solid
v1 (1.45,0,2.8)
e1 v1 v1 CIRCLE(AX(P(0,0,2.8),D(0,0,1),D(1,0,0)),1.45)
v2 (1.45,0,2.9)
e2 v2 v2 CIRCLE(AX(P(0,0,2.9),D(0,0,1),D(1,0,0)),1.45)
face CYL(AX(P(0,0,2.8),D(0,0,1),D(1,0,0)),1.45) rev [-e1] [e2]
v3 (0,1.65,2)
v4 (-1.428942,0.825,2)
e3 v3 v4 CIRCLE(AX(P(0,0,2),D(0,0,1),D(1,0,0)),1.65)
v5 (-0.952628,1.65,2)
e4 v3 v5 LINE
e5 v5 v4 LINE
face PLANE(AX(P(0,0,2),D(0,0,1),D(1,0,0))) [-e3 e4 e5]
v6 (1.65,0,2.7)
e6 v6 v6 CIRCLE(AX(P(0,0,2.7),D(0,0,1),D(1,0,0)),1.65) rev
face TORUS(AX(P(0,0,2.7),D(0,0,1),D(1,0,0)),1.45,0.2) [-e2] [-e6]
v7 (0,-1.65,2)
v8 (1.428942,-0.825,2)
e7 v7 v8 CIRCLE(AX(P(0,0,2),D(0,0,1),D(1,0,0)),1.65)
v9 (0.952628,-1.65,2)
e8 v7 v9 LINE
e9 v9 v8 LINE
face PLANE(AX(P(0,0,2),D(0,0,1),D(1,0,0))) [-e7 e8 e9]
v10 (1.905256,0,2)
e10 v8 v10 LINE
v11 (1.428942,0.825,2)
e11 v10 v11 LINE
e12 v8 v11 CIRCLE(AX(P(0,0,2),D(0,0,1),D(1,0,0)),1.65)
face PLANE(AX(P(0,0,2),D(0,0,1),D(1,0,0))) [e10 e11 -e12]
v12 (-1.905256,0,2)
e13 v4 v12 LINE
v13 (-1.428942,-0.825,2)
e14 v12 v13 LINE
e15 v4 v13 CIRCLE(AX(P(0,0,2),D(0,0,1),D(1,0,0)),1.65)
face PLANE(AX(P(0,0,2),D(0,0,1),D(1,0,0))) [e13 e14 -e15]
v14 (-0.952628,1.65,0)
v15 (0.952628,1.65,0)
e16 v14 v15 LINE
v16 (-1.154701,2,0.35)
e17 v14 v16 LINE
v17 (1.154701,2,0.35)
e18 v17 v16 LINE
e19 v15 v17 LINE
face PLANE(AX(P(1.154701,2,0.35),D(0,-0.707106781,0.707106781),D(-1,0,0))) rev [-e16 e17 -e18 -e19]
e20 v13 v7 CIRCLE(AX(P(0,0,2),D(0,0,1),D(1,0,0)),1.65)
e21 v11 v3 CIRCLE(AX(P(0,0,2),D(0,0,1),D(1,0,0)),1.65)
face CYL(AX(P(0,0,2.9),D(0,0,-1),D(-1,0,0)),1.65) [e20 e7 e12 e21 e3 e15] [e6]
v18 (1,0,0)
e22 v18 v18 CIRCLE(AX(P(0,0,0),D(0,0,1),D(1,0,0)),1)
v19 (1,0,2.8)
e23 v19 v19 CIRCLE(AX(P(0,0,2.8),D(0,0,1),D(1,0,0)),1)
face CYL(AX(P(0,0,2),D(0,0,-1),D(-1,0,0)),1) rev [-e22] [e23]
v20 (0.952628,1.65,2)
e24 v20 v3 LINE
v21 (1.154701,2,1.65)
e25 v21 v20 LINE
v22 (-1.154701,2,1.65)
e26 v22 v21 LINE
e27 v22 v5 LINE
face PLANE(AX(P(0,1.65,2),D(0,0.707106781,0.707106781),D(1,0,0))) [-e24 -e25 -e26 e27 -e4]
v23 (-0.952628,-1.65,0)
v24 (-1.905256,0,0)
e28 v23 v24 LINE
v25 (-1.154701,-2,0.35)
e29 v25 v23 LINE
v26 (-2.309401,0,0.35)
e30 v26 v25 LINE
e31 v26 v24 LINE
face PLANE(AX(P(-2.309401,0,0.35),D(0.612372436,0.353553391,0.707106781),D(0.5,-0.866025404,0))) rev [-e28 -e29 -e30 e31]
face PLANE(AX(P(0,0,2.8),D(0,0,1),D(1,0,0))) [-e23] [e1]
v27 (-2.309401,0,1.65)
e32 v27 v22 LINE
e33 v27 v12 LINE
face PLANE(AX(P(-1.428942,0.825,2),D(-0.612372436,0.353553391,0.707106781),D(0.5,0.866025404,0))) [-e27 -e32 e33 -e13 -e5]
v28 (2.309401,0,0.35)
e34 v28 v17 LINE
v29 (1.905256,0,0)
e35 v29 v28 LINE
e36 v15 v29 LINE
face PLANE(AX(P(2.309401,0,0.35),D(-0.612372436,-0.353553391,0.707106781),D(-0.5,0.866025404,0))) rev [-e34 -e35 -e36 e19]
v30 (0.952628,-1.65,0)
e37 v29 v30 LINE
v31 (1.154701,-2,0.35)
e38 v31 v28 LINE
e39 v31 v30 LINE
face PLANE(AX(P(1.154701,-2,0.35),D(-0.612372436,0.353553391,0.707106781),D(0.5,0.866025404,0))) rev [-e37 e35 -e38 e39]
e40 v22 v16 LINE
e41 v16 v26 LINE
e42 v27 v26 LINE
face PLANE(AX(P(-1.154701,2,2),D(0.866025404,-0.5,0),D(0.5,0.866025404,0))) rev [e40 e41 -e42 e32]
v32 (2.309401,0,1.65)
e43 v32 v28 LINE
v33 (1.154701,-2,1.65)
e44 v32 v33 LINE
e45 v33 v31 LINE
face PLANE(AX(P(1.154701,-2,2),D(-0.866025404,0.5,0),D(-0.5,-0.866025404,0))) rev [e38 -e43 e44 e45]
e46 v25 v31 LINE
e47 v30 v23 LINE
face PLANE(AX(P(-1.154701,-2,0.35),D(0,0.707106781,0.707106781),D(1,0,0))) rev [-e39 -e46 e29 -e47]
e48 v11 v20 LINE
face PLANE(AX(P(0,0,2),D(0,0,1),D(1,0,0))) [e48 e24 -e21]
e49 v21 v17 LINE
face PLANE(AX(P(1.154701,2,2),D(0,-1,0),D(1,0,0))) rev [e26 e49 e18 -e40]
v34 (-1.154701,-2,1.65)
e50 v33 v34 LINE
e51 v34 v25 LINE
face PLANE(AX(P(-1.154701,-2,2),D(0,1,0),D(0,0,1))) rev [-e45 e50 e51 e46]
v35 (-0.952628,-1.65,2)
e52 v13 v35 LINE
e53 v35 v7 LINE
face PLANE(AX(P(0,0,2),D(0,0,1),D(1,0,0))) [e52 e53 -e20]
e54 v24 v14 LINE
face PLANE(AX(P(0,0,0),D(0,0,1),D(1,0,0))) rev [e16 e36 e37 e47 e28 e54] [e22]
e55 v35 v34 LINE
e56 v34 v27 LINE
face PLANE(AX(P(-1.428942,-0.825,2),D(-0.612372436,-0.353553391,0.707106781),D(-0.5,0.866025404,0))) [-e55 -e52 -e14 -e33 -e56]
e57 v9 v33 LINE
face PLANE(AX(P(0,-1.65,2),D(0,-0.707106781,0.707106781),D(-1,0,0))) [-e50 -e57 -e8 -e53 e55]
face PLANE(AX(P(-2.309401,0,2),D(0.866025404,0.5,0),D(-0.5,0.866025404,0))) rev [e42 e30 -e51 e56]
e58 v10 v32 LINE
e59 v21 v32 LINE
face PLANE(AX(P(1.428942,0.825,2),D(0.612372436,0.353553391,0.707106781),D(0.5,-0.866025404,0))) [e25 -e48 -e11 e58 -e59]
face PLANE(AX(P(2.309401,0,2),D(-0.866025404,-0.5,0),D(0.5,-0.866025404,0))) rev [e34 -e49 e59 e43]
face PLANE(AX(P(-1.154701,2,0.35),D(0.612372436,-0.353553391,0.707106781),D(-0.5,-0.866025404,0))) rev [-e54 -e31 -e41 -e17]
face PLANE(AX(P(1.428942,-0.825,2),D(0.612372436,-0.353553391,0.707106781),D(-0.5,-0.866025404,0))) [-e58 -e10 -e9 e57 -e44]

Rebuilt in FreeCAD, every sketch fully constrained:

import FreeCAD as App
import Part
import Sketcher
Q = App.Units.Quantity


def edges_at(feature, points):
    """Names of the edges that pass closest to the given points."""
    edges = feature.Shape.Edges
    near = lambda p: min(range(len(edges)), key=lambda i: edges[i].distToShape(Part.Vertex(*p))[0])
    return sorted({f"Edge{near(p) + 1}" for p in points})


def add_polygon(sketch, points):
    """Adds a closed chain of lines whose ends are joined by coincident constraints."""
    first, n = sketch.GeometryCount, len(points)
    for a, b in zip(points, points[1:] + points[:1]):
        sketch.addGeometry(Part.LineSegment(App.Vector(*a, 0), App.Vector(*b, 0)), False)
    for i in range(n):
        sketch.addConstraint(Sketcher.Constraint("Coincident", first + i, 2, first + (i + 1) % n, 1))

doc = App.newDocument("Part")
body = doc.addObject("PartDesign::Body", "Body")

sketch1 = doc.addObject("Sketcher::SketchObject", "Sketch")
body.addObject(sketch1)
sketch1.AttachmentSupport = (doc.XY_Plane, [""])
sketch1.MapMode = "FlatFace"
add_polygon(sketch1, [(-1.154701, -2), (1.154701, -2), (2.309401, 0), (1.154701, 2), (-1.154701, 2), (-2.309401, 0)])
sketch1.addGeometry(Part.Circle(App.Vector(0, 0, 0), App.Vector(0, 0, 1), 1), False)
sketch1.addConstraint([
    Sketcher.Constraint("Horizontal", 0),
    Sketcher.Constraint("Horizontal", 3),
    Sketcher.Constraint("Coincident", 6, 3, -1, 1),
    Sketcher.Constraint("Symmetric", 0, 2, 3, 2, -1, 1),
    Sketcher.Constraint("Symmetric", 1, 2, 4, 2, -1, 1),
    Sketcher.Constraint("PointOnObject", 1, 2, -1),
    Sketcher.Constraint("Parallel", 2, 5),
    Sketcher.Constraint("Vertical", 0, 2, 2, 2),
    Sketcher.Constraint("Diameter", 6, 2.0),
    Sketcher.Constraint("Angle", 1, Q("60 deg")),
    Sketcher.Constraint("DistanceY", 0, 2, -1, 1, 2.0),
    Sketcher.Constraint("DistanceX", 0, 1, 0, 2, 2.309401),
])
pad1 = doc.addObject("PartDesign::Pad", "Pad")
body.addObject(pad1)
pad1.Profile = sketch1
pad1.Length = 2
doc.recompute()

chamfer = doc.addObject("PartDesign::Chamfer", "Chamfer")
body.addObject(chamfer)
chamfer.Base = (pad1, edges_at(pad1, [
    (1.732, -1, 2),
    (1.732, 1, 2),
    (0, 2, 2),
    (-1.732, 1, 2),
    (-1.732, -1, 2),
    (-1.732, 1, 0),
    (0, 2, 0),
    (1.732, 1, 0),
    (0, -2, 2),
    (1.732, -1, 0),
    (0, -2, 0),
    (-1.732, -1, 0),
]))
chamfer.Size = 0.35

sketch2 = doc.addObject("Sketcher::SketchObject", "Sketch001")
body.addObject(sketch2)
sketch2.AttachmentSupport = (doc.XY_Plane, [""])
sketch2.MapMode = "FlatFace"
sketch2.AttachmentOffset = App.Placement(App.Vector(0, 0, 2), App.Rotation())
sketch2.addGeometry([
    Part.Circle(App.Vector(0, 0, 0), App.Vector(0, 0, 1), 1.65),
    Part.Circle(App.Vector(0, 0, 0), App.Vector(0, 0, 1), 1),
], False)
sketch2.addConstraint([
    Sketcher.Constraint("Coincident", 0, 3, -1, 1),
    Sketcher.Constraint("Coincident", 1, 3, -1, 1),
    Sketcher.Constraint("Diameter", 1, 2.0),
    Sketcher.Constraint("Diameter", 0, 3.3),
])
pad2 = doc.addObject("PartDesign::Pad", "Pad001")
body.addObject(pad2)
pad2.Profile = sketch2
pad2.Length = 0.9
doc.recompute()

fillet = doc.addObject("PartDesign::Fillet", "Fillet")
body.addObject(fillet)
fillet.Base = (pad2, edges_at(pad2, [(-1.65, 0, 2.9)]))
fillet.Radius = 0.2

sketch3 = doc.addObject("Sketcher::SketchObject", "Sketch002")
body.addObject(sketch3)
sketch3.AttachmentSupport = (doc.XY_Plane, [""])
sketch3.MapMode = "FlatFace"
sketch3.AttachmentOffset = App.Placement(App.Vector(0, 0, 2.9), App.Rotation())
sketch3.addGeometry([
    Part.Circle(App.Vector(0, 0, 0), App.Vector(0, 0, 1), 1.45),
    Part.Circle(App.Vector(0, 0, 0), App.Vector(0, 0, 1), 1),
], False)
sketch3.addConstraint([
    Sketcher.Constraint("Coincident", 0, 3, -1, 1),
    Sketcher.Constraint("Coincident", 1, 3, -1, 1),
    Sketcher.Constraint("Diameter", 1, 2.0),
    Sketcher.Constraint("Diameter", 0, 2.9),
])
pocket1 = doc.addObject("PartDesign::Pocket", "Pocket")
body.addObject(pocket1)
pocket1.Profile = sketch3
pocket1.Length = 0.1

doc.recompute()
